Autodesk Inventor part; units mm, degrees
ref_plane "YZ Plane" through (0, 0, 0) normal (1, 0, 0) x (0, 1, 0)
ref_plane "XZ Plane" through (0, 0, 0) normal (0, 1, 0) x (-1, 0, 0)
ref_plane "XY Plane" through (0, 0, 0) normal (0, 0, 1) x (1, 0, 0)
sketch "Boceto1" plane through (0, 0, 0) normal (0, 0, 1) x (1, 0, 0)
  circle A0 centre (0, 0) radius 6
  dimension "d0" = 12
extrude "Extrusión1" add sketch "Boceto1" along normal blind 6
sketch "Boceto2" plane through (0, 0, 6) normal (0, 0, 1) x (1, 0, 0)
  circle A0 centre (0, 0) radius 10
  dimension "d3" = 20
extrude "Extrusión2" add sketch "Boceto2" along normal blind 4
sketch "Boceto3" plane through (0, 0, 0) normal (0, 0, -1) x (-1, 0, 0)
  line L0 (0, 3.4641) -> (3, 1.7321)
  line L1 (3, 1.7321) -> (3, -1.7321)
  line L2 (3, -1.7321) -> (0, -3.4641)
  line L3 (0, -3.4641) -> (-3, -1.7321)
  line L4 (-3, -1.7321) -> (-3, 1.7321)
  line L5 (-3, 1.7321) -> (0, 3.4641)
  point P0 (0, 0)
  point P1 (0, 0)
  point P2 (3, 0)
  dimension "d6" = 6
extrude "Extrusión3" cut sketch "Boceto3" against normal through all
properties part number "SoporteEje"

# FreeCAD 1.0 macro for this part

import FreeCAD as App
import Part
import Sketcher
Q = App.Units.Quantity

doc = App.newDocument("Part")
body = doc.addObject("PartDesign::Body", "Body")

# Sketch on XY plane
sketch1 = body.newObject("Sketcher::SketchObject", "Sketch")
sketch1.AttachmentSupport = (doc.getObject("XY_Plane"), [""])
sketch1.MapMode = "FlatFace"
sketch1.addGeometry(Part.Circle(App.Vector(0, 0, 0), App.Vector(0, 0, 1), 6), False)
sketch1.addConstraint([
    Sketcher.Constraint("Coincident", 0, 3, -1, 1),
    Sketcher.Constraint("Diameter", 0, 12.0),
])
pad1 = body.newObject("PartDesign::Pad", "Pad")
pad1.Profile = sketch1
pad1.Length = 6

# Sketch on XY plane
sketch2 = body.newObject("Sketcher::SketchObject", "Sketch001")
sketch2.AttachmentSupport = (doc.getObject("XY_Plane"), [""])
sketch2.MapMode = "FlatFace"
sketch2.AttachmentOffset = App.Placement(App.Vector(0, 0, 6), App.Rotation())
sketch2.addGeometry(Part.Circle(App.Vector(0, 0, 0), App.Vector(0, 0, 1), 10), False)
sketch2.addConstraint([
    Sketcher.Constraint("Coincident", 0, 3, -1, 1),
    Sketcher.Constraint("Diameter", 0, 20.0),
])
pad2 = body.newObject("PartDesign::Pad", "Pad001")
pad2.Profile = sketch2
pad2.Length = 4

# Sketch on XY plane
sketch3 = body.newObject("Sketcher::SketchObject", "Sketch002")
sketch3.AttachmentSupport = (doc.getObject("XY_Plane"), [""])
sketch3.MapMode = "FlatFace"
sketch3.addGeometry([
    Part.LineSegment(App.Vector(-3, 1.7, 0), App.Vector(0, 3.5, 0)),  # 0
    Part.LineSegment(App.Vector(0, 3.5, 0), App.Vector(3, 1.7, 0)),  # 1
    Part.LineSegment(App.Vector(3, 1.7, 0), App.Vector(3, -1.7, 0)),  # 2
    Part.LineSegment(App.Vector(3, -1.7, 0), App.Vector(0, -3.5, 0)),  # 3
    Part.LineSegment(App.Vector(0, -3.5, 0), App.Vector(-3, -1.7, 0)),  # 4
    Part.LineSegment(App.Vector(-3, -1.7, 0), App.Vector(-3, 1.7, 0)),  # 5
], False)
sketch3.addConstraint([
    Sketcher.Constraint("Coincident", 0, 2, 1, 1),
    Sketcher.Constraint("Coincident", 1, 2, 2, 1),
    Sketcher.Constraint("Coincident", 2, 2, 3, 1),
    Sketcher.Constraint("Coincident", 3, 2, 4, 1),
    Sketcher.Constraint("Coincident", 4, 2, 5, 1),
    Sketcher.Constraint("Coincident", 5, 2, 0, 1),
    Sketcher.Constraint("Vertical", 2),
    Sketcher.Constraint("Vertical", 5),
    Sketcher.Constraint("Symmetric", 0, 2, 3, 2, -1, 1),
    Sketcher.Constraint("Symmetric", 1, 2, 4, 2, -1, 1),
    Sketcher.Constraint("PointOnObject", 0, 2, -2),
    Sketcher.Constraint("Parallel", 0, 3),
    Sketcher.Constraint("Horizontal", 2, 2, 4, 2),
    Sketcher.Constraint("DistanceX", 4, 2, 2, 2, 6.0),
    Sketcher.Constraint("Angle", 0, Q("29.9993 deg")),
    Sketcher.Constraint("DistanceY", 2, 2, 2, 1, 3.4642),
])
pocket1 = body.newObject("PartDesign::Pocket", "Pocket")
pocket1.Profile = sketch3
pocket1.Type = "ThroughAll"
pocket1.Reversed = True

doc.recompute()
